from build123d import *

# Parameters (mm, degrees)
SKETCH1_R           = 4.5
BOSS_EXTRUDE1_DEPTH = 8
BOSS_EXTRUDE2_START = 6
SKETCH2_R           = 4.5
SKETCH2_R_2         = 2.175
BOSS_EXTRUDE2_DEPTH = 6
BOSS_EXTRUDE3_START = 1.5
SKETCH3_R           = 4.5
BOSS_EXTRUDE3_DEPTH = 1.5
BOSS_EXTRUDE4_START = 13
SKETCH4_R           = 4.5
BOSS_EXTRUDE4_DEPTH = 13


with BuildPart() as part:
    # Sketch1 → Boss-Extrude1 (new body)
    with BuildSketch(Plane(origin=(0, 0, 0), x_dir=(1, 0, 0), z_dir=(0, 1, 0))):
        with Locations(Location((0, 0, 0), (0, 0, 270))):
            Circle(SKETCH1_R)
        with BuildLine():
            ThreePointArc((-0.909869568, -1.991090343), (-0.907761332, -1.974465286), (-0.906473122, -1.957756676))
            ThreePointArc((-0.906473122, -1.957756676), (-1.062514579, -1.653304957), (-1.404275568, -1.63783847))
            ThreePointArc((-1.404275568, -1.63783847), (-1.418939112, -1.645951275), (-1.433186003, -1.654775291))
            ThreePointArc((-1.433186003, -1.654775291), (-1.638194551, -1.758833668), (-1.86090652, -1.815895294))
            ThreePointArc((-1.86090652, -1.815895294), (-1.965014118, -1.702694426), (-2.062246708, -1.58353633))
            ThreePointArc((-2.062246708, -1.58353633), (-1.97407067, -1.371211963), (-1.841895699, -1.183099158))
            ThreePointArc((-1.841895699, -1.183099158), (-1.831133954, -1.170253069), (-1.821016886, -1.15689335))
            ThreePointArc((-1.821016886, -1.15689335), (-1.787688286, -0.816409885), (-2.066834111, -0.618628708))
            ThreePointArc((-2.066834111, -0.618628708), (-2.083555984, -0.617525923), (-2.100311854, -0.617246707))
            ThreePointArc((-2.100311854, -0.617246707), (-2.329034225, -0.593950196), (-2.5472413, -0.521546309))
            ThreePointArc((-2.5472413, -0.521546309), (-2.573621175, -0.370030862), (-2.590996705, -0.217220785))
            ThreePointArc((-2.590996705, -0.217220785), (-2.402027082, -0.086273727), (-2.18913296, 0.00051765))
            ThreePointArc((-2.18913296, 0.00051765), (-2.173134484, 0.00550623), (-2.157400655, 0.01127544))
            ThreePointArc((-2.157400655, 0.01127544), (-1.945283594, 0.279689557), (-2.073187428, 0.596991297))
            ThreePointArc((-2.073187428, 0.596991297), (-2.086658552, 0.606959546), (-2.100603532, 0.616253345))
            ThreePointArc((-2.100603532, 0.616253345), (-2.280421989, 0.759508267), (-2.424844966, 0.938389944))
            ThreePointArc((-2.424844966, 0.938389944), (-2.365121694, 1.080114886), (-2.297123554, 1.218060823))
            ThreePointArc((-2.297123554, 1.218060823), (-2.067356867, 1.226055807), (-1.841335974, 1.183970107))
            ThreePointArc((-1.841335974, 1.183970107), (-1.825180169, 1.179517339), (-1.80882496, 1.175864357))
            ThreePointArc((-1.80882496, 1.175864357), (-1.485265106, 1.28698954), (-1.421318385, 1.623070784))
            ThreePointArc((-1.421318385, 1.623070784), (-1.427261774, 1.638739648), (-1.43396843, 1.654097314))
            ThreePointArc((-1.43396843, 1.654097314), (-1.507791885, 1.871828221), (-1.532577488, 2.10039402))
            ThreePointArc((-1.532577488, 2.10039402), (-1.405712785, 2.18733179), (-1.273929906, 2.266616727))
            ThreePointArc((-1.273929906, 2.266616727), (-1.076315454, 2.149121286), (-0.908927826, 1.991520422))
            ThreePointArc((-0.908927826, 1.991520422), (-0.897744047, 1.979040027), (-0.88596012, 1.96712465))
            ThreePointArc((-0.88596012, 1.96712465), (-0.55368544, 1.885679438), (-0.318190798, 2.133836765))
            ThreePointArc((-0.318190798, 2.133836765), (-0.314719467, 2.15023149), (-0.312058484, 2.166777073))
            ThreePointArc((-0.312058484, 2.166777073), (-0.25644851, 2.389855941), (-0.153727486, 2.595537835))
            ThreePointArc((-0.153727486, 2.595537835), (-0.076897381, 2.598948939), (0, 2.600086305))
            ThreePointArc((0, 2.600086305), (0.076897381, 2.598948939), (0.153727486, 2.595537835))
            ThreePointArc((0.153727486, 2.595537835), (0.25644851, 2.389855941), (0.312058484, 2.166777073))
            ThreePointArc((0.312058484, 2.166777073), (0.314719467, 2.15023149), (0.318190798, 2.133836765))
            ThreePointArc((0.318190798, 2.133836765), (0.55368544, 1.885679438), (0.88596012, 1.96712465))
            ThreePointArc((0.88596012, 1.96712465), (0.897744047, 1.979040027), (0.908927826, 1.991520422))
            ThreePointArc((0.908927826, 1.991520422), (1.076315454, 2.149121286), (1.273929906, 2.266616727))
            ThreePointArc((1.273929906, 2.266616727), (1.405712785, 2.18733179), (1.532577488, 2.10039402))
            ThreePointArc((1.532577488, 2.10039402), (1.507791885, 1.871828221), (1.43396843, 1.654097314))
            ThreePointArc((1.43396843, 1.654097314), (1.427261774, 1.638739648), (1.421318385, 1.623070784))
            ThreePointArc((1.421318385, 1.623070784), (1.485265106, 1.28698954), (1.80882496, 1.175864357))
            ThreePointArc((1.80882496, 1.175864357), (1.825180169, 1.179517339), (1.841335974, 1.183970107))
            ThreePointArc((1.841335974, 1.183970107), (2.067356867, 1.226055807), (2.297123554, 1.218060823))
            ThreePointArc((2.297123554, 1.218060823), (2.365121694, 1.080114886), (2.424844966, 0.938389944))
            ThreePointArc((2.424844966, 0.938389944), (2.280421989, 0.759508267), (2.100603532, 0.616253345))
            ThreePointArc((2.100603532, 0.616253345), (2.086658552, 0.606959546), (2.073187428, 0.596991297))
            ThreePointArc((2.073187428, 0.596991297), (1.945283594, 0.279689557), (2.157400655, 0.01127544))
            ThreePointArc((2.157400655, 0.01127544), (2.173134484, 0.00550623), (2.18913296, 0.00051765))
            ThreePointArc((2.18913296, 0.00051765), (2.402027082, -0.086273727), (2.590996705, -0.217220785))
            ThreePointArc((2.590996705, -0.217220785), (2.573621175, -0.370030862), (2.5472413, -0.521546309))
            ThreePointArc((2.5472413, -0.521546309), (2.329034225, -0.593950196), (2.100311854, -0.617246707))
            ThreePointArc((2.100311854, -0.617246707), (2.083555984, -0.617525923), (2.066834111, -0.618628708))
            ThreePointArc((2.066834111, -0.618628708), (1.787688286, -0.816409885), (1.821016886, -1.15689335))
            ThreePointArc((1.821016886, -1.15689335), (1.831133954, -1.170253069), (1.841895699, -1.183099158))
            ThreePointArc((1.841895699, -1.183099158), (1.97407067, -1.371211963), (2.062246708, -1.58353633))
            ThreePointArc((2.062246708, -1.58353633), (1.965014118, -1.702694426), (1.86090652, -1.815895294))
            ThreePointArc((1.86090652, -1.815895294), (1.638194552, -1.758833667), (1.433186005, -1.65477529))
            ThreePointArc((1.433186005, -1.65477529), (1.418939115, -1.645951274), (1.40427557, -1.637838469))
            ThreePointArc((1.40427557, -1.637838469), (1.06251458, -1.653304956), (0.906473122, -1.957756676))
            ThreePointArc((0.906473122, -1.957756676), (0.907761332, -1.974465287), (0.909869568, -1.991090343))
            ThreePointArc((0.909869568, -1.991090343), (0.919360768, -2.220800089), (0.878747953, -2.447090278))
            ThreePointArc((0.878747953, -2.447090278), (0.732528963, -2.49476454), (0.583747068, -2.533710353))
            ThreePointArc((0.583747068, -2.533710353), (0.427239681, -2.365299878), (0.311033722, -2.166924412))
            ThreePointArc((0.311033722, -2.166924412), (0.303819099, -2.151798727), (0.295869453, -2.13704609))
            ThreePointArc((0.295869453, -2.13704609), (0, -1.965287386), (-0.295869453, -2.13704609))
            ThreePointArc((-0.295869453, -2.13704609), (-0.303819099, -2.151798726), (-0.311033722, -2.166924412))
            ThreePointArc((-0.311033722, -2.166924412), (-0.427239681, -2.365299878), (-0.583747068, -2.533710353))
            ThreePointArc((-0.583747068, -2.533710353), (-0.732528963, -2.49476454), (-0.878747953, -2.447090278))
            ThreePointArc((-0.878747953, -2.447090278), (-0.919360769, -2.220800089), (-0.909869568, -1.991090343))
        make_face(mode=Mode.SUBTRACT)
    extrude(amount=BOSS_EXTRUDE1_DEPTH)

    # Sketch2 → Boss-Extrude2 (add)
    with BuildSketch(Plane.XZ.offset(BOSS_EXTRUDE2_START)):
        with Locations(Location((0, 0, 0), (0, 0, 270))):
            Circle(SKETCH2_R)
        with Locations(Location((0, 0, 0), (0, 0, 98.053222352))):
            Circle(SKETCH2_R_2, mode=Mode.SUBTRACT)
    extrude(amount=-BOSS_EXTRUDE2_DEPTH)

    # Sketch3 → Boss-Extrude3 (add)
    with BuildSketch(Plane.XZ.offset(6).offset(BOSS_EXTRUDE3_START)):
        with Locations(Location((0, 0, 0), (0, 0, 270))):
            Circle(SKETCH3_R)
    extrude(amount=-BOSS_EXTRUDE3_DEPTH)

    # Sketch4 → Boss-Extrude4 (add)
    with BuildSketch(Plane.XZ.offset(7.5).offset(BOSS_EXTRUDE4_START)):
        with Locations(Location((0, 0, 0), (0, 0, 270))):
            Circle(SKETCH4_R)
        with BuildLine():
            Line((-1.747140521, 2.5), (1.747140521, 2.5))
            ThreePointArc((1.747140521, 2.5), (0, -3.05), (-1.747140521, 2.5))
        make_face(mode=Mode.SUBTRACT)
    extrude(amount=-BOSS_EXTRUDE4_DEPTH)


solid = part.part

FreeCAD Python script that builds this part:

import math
import FreeCAD as App
import Part
import Sketcher

V = App.Vector

doc = App.newDocument("Part")
body = doc.addObject("PartDesign::Body", "Body")

# Sketch on XZ plane
sketch1 = body.newObject("Sketcher::SketchObject", "Sketch")
sketch1.AttachmentSupport = (doc.getObject("XZ_Plane"), [""])
sketch1.MapMode = "FlatFace"
sketch1.addGeometry(Part.Circle(V(0, 0, 0), V(0, 0, 1), 4.5), False)
sketch1.addGeometry(Part.ArcOfCircle(Part.Circle(V(0.131, 2.149, 0), V(0, 0, 1), 1.052), math.radians(164), math.radians(189)), False)
sketch1.addGeometry(Part.ArcOfCircle(Part.Circle(V(-1.247, 1.94, 0), V(0, 0, 1), 0.341), math.radians(3), math.radians(8.64)), False)
sketch1.addGeometry(Part.ArcOfCircle(Part.Circle(V(-1.247, 1.94, 0), V(0, 0, 1), 0.341), math.radians(-118), math.radians(3)), False)
sketch1.addGeometry(Part.ArcOfCircle(Part.Circle(V(-1.247, 1.94, 0), V(0, 0, 1), 0.341), math.radians(-123.18), math.radians(-117.54)), False)
sketch1.addGeometry(Part.ArcOfCircle(Part.Circle(V(-2.009, 0.774, 0), V(0, 0, 1), 1.052), math.radians(57), math.radians(82)), False)
sketch1.addGeometry(Part.ArcOfCircle(Part.Circle(V(0, 0, 0), V(0, 0, 1), 2.6), math.radians(135.7), math.radians(142.48)), False)
sketch1.addGeometry(Part.ArcOfCircle(Part.Circle(V(-1.052, 1.879, 0), V(0, 0, 1), 1.052), math.radians(-164), math.radians(-139)), False)
sketch1.addGeometry(Part.ArcOfCircle(Part.Circle(V(-2.098, 0.958, 0), V(0, 0, 1), 0.341), math.radians(35.73), math.radians(41.36)), False)
sketch1.addGeometry(Part.ArcOfCircle(Part.Circle(V(-2.098, 0.958, 0), V(0, 0, 1), 0.341), math.radians(-85), math.radians(36)), False)
sketch1.addGeometry(Part.ArcOfCircle(Part.Circle(V(-2.098, 0.958, 0), V(0, 0, 1), 0.341), math.radians(-90.45), math.radians(-84.82)), False)
sketch1.addGeometry(Part.ArcOfCircle(Part.Circle(V(-2.109, -0.435, 0), V(0, 0, 1), 1.052), math.radians(90), math.radians(115)), False)
sketch1.addGeometry(Part.ArcOfCircle(Part.Circle(V(0, 0, 0), V(0, 0, 1), 2.6), math.radians(168.43), math.radians(175.21)), False)
sketch1.addGeometry(Part.ArcOfCircle(Part.Circle(V(-1.901, 1.012, 0), V(0, 0, 1), 1.052), math.radians(-131), math.radians(-106)), False)
sketch1.addGeometry(Part.ArcOfCircle(Part.Circle(V(-2.283, -0.328, 0), V(0, 0, 1), 0.341), math.radians(68.45), math.radians(74.09)), False)
sketch1.addGeometry(Part.ArcOfCircle(Part.Circle(V(-2.283, -0.328, 0), V(0, 0, 1), 0.341), math.radians(-52), math.radians(68)), False)
sketch1.addGeometry(Part.ArcOfCircle(Part.Circle(V(-2.283, -0.328, 0), V(0, 0, 1), 0.341), math.radians(-57.73), math.radians(-52.09)), False)
sketch1.addGeometry(Part.ArcOfCircle(Part.Circle(V(-1.539, -1.506, 0), V(0, 0, 1), 1.052), math.radians(122), math.radians(147)), False)
sketch1.addGeometry(Part.ArcOfCircle(Part.Circle(V(0, 0, 0), V(0, 0, 1), 2.6), math.radians(-158.84), math.radians(-152.07)), False)
sketch1.addGeometry(Part.ArcOfCircle(Part.Circle(V(-2.146, -0.176, 0), V(0, 0, 1), 1.052), math.radians(-98), math.radians(-73)), False)
sketch1.addGeometry(Part.ArcOfCircle(Part.Circle(V(-1.743, -1.51, 0), V(0, 0, 1), 0.341), math.radians(101.18), math.radians(106.82)), False)
sketch1.addGeometry(Part.ArcOfCircle(Part.Circle(V(-1.743, -1.51, 0), V(0, 0, 1), 0.341), math.radians(-19), math.radians(101)), False)
sketch1.addGeometry(Part.ArcOfCircle(Part.Circle(V(-1.743, -1.51, 0), V(0, 0, 1), 0.341), math.radians(-25), math.radians(-19.36)), False)
sketch1.addGeometry(Part.ArcOfCircle(Part.Circle(V(-0.48, -2.099, 0), V(0, 0, 1), 1.052), math.radians(155), math.radians(180)), False)
sketch1.addGeometry(Part.ArcOfCircle(Part.Circle(V(0, 0, 0), V(0, 0, 1), 2.6), math.radians(-126.12), math.radians(-119.34)), False)
sketch1.addGeometry(Part.ArcOfCircle(Part.Circle(V(-1.71, -1.309, 0), V(0, 0, 1), 1.052), math.radians(-66), math.radians(-40)), False)
sketch1.addGeometry(Part.ArcOfCircle(Part.Circle(V(-0.65, -2.213, 0), V(0, 0, 1), 0.341), math.radians(133.91), math.radians(139.55)), False)
sketch1.addGeometry(Part.ArcOfCircle(Part.Circle(V(-0.65, -2.213, 0), V(0, 0, 1), 0.341), math.radians(13), math.radians(134)), False)
sketch1.addGeometry(Part.ArcOfCircle(Part.Circle(V(-0.65, -2.213, 0), V(0, 0, 1), 0.341), math.radians(7.73), math.radians(13.36)), False)
sketch1.addGeometry(Part.ArcOfCircle(Part.Circle(V(0.731, -2.025, 0), V(0, 0, 1), 1.052), math.radians(-172), math.radians(-147)), False)
sketch1.addGeometry(Part.ArcOfCircle(Part.Circle(V(0, 0, 0), V(0, 0, 1), 2.6), math.radians(-93.39), math.radians(-90)), False)
sketch1.addGeometry(Part.ArcOfCircle(Part.Circle(V(0, 0, 0), V(0, 0, 1), 2.6), math.radians(-90), math.radians(-86.61)), False)
sketch1.addGeometry(Part.ArcOfCircle(Part.Circle(V(-0.731, -2.025, 0), V(0, 0, 1), 1.052), math.radians(-33), math.radians(-8)), False)
sketch1.addGeometry(Part.ArcOfCircle(Part.Circle(V(0.65, -2.213, 0), V(0, 0, 1), 0.341), math.radians(166.64), math.radians(172.27)), False)
sketch1.addGeometry(Part.ArcOfCircle(Part.Circle(V(0.65, -2.213, 0), V(0, 0, 1), 0.341), math.radians(46), math.radians(167)), False)
sketch1.addGeometry(Part.ArcOfCircle(Part.Circle(V(0.65, -2.213, 0), V(0, 0, 1), 0.341), math.radians(40.45), math.radians(46.09)), False)
sketch1.addGeometry(Part.ArcOfCircle(Part.Circle(V(1.71, -1.309, 0), V(0, 0, 1), 1.052), math.radians(-140), math.radians(-114)), False)
sketch1.addGeometry(Part.ArcOfCircle(Part.Circle(V(0, 0, 0), V(0, 0, 1), 2.6), math.radians(-60.66), math.radians(-53.88)), False)
sketch1.addGeometry(Part.ArcOfCircle(Part.Circle(V(0.48, -2.099, 0), V(0, 0, 1), 1.052), math.radians(0), math.radians(25)), False)
sketch1.addGeometry(Part.ArcOfCircle(Part.Circle(V(1.743, -1.51, 0), V(0, 0, 1), 0.341), math.radians(-160.64), math.radians(-155)), False)
sketch1.addGeometry(Part.ArcOfCircle(Part.Circle(V(1.743, -1.51, 0), V(0, 0, 1), 0.341), math.radians(79), math.radians(199)), False)
sketch1.addGeometry(Part.ArcOfCircle(Part.Circle(V(1.743, -1.51, 0), V(0, 0, 1), 0.341), math.radians(73.18), math.radians(78.82)), False)
sketch1.addGeometry(Part.ArcOfCircle(Part.Circle(V(2.146, -0.176, 0), V(0, 0, 1), 1.052), math.radians(-107), math.radians(-82)), False)
sketch1.addGeometry(Part.ArcOfCircle(Part.Circle(V(0, 0, 0), V(0, 0, 1), 2.6), math.radians(-27.93), math.radians(-21.16)), False)
sketch1.addGeometry(Part.ArcOfCircle(Part.Circle(V(1.539, -1.506, 0), V(0, 0, 1), 1.052), math.radians(33), math.radians(58)), False)
sketch1.addGeometry(Part.ArcOfCircle(Part.Circle(V(2.283, -0.328, 0), V(0, 0, 1), 0.341), math.radians(-127.91), math.radians(-122.27)), False)
sketch1.addGeometry(Part.ArcOfCircle(Part.Circle(V(2.283, -0.328, 0), V(0, 0, 1), 0.341), math.radians(112), math.radians(232)), False)
sketch1.addGeometry(Part.ArcOfCircle(Part.Circle(V(2.283, -0.328, 0), V(0, 0, 1), 0.341), math.radians(105.91), math.radians(111.55)), False)
sketch1.addGeometry(Part.ArcOfCircle(Part.Circle(V(1.901, 1.012, 0), V(0, 0, 1), 1.052), math.radians(-74), math.radians(-49)), False)
sketch1.addGeometry(Part.ArcOfCircle(Part.Circle(V(0, 0, 0), V(0, 0, 1), 2.6), math.radians(4.79), math.radians(11.57)), False)
sketch1.addGeometry(Part.ArcOfCircle(Part.Circle(V(2.109, -0.435, 0), V(0, 0, 1), 1.052), math.radians(65), math.radians(90)), False)
sketch1.addGeometry(Part.ArcOfCircle(Part.Circle(V(2.098, 0.958, 0), V(0, 0, 1), 0.341), math.radians(-95.18), math.radians(-89.55)), False)
sketch1.addGeometry(Part.ArcOfCircle(Part.Circle(V(2.098, 0.958, 0), V(0, 0, 1), 0.341), math.radians(144), math.radians(265)), False)
sketch1.addGeometry(Part.ArcOfCircle(Part.Circle(V(2.098, 0.958, 0), V(0, 0, 1), 0.341), math.radians(138.64), math.radians(144.27)), False)
sketch1.addGeometry(Part.ArcOfCircle(Part.Circle(V(1.052, 1.879, 0), V(0, 0, 1), 1.052), math.radians(-41), math.radians(-16)), False)
sketch1.addGeometry(Part.ArcOfCircle(Part.Circle(V(0, 0, 0), V(0, 0, 1), 2.6), math.radians(37.52), math.radians(44.3)), False)
sketch1.addGeometry(Part.ArcOfCircle(Part.Circle(V(2.009, 0.774, 0), V(0, 0, 1), 1.052), math.radians(98), math.radians(123)), False)
sketch1.addGeometry(Part.ArcOfCircle(Part.Circle(V(1.247, 1.94, 0), V(0, 0, 1), 0.341), math.radians(-62.46), math.radians(-56.82)), False)
sketch1.addGeometry(Part.ArcOfCircle(Part.Circle(V(1.247, 1.94, 0), V(0, 0, 1), 0.341), math.radians(177), math.radians(298)), False)
sketch1.addGeometry(Part.ArcOfCircle(Part.Circle(V(1.247, 1.94, 0), V(0, 0, 1), 0.341), math.radians(171.36), math.radians(177)), False)
sketch1.addGeometry(Part.ArcOfCircle(Part.Circle(V(-0.131, 2.149, 0), V(0, 0, 1), 1.052), math.radians(-9), math.radians(16)), False)
sketch1.addGeometry(Part.ArcOfCircle(Part.Circle(V(0, 0, 0), V(0, 0, 1), 2.6), math.radians(70.25), math.radians(77.03)), False)
sketch1.addGeometry(Part.ArcOfCircle(Part.Circle(V(1.272, 1.737, 0), V(0, 0, 1), 1.052), math.radians(131), math.radians(156)), False)
sketch1.addGeometry(Part.ArcOfCircle(Part.Circle(V(0, 2.306, 0), V(0, 0, 1), 0.341), math.radians(-29.73), math.radians(-24.09)), False)
sketch1.addGeometry(Part.ArcOfCircle(Part.Circle(V(0, 2.306, 0), V(0, 0, 1), 0.341), math.radians(-150), math.radians(-30)), False)
sketch1.addGeometry(Part.ArcOfCircle(Part.Circle(V(0, 2.306, 0), V(0, 0, 1), 0.341), math.radians(-155.91), math.radians(-150.27)), False)
sketch1.addGeometry(Part.ArcOfCircle(Part.Circle(V(-1.272, 1.737, 0), V(0, 0, 1), 1.052), math.radians(24), math.radians(49)), False)
sketch1.addGeometry(Part.ArcOfCircle(Part.Circle(V(0, 0, 0), V(0, 0, 1), 2.6), math.radians(102.97), math.radians(109.75)), False)
sketch1.addConstraint(Sketcher.Constraint("Tangent", 1, 2, 2, 2))
sketch1.addConstraint(Sketcher.Constraint("Tangent", 2, 1, 3, 2))
sketch1.addConstraint(Sketcher.Constraint("Tangent", 3, 1, 4, 2))
sketch1.addConstraint(Sketcher.Constraint("Tangent", 4, 1, 5, 1))
sketch1.addConstraint(Sketcher.Constraint("Coincident", 5, 2, 6, 1))
sketch1.addConstraint(Sketcher.Constraint("Coincident", 6, 2, 7, 1))
sketch1.addConstraint(Sketcher.Constraint("Tangent", 7, 2, 8, 2))
sketch1.addConstraint(Sketcher.Constraint("Tangent", 8, 1, 9, 2))
sketch1.addConstraint(Sketcher.Constraint("Tangent", 9, 1, 10, 2))
sketch1.addConstraint(Sketcher.Constraint("Tangent", 10, 1, 11, 1))
sketch1.addConstraint(Sketcher.Constraint("Coincident", 11, 2, 12, 1))
sketch1.addConstraint(Sketcher.Constraint("Coincident", 12, 2, 13, 1))
sketch1.addConstraint(Sketcher.Constraint("Tangent", 13, 2, 14, 2))
sketch1.addConstraint(Sketcher.Constraint("Tangent", 14, 1, 15, 2))
sketch1.addConstraint(Sketcher.Constraint("Tangent", 15, 1, 16, 2))
sketch1.addConstraint(Sketcher.Constraint("Tangent", 16, 1, 17, 1))
sketch1.addConstraint(Sketcher.Constraint("Coincident", 17, 2, 18, 1))
sketch1.addConstraint(Sketcher.Constraint("Coincident", 18, 2, 19, 1))
sketch1.addConstraint(Sketcher.Constraint("Tangent", 19, 2, 20, 2))
sketch1.addConstraint(Sketcher.Constraint("Tangent", 20, 1, 21, 2))
sketch1.addConstraint(Sketcher.Constraint("Tangent", 21, 1, 22, 2))
sketch1.addConstraint(Sketcher.Constraint("Tangent", 22, 1, 23, 1))
sketch1.addConstraint(Sketcher.Constraint("Coincident", 23, 2, 24, 1))
sketch1.addConstraint(Sketcher.Constraint("Coincident", 24, 2, 25, 1))
sketch1.addConstraint(Sketcher.Constraint("Tangent", 25, 2, 26, 2))
sketch1.addConstraint(Sketcher.Constraint("Tangent", 26, 1, 27, 2))
sketch1.addConstraint(Sketcher.Constraint("Tangent", 27, 1, 28, 2))
sketch1.addConstraint(Sketcher.Constraint("Tangent", 28, 1, 29, 1))
sketch1.addConstraint(Sketcher.Constraint("Coincident", 29, 2, 30, 1))
sketch1.addConstraint(Sketcher.Constraint("Tangent", 30, 2, 31, 1))
sketch1.addConstraint(Sketcher.Constraint("Coincident", 31, 2, 32, 1))
sketch1.addConstraint(Sketcher.Constraint("Tangent", 32, 2, 33, 2))
sketch1.addConstraint(Sketcher.Constraint("Tangent", 33, 1, 34, 2))
sketch1.addConstraint(Sketcher.Constraint("Tangent", 34, 1, 35, 2))
sketch1.addConstraint(Sketcher.Constraint("Tangent", 35, 1, 36, 1))
sketch1.addConstraint(Sketcher.Constraint("Coincident", 36, 2, 37, 1))
sketch1.addConstraint(Sketcher.Constraint("Coincident", 37, 2, 38, 1))
sketch1.addConstraint(Sketcher.Constraint("Tangent", 38, 2, 39, 2))
sketch1.addConstraint(Sketcher.Constraint("Tangent", 39, 1, 40, 2))
sketch1.addConstraint(Sketcher.Constraint("Tangent", 40, 1, 41, 2))
sketch1.addConstraint(Sketcher.Constraint("Tangent", 41, 1, 42, 1))
sketch1.addConstraint(Sketcher.Constraint("Coincident", 42, 2, 43, 1))
sketch1.addConstraint(Sketcher.Constraint("Coincident", 43, 2, 44, 1))
sketch1.addConstraint(Sketcher.Constraint("Tangent", 44, 2, 45, 2))
sketch1.addConstraint(Sketcher.Constraint("Tangent", 45, 1, 46, 2))
sketch1.addConstraint(Sketcher.Constraint("Tangent", 46, 1, 47, 2))
sketch1.addConstraint(Sketcher.Constraint("Tangent", 47, 1, 48, 1))
sketch1.addConstraint(Sketcher.Constraint("Coincident", 48, 2, 49, 1))
sketch1.addConstraint(Sketcher.Constraint("Coincident", 49, 2, 50, 1))
sketch1.addConstraint(Sketcher.Constraint("Tangent", 50, 2, 51, 2))
sketch1.addConstraint(Sketcher.Constraint("Tangent", 51, 1, 52, 2))
sketch1.addConstraint(Sketcher.Constraint("Tangent", 52, 1, 53, 2))
sketch1.addConstraint(Sketcher.Constraint("Tangent", 53, 1, 54, 1))
sketch1.addConstraint(Sketcher.Constraint("Coincident", 54, 2, 55, 1))
sketch1.addConstraint(Sketcher.Constraint("Coincident", 55, 2, 56, 1))
sketch1.addConstraint(Sketcher.Constraint("Tangent", 56, 2, 57, 2))
sketch1.addConstraint(Sketcher.Constraint("Tangent", 57, 1, 58, 2))
sketch1.addConstraint(Sketcher.Constraint("Tangent", 58, 1, 59, 2))
sketch1.addConstraint(Sketcher.Constraint("Tangent", 59, 1, 60, 1))
sketch1.addConstraint(Sketcher.Constraint("Coincident", 60, 2, 61, 1))
sketch1.addConstraint(Sketcher.Constraint("Coincident", 61, 2, 62, 1))
sketch1.addConstraint(Sketcher.Constraint("Tangent", 62, 2, 63, 2))
sketch1.addConstraint(Sketcher.Constraint("Tangent", 63, 1, 64, 2))
sketch1.addConstraint(Sketcher.Constraint("Tangent", 64, 1, 65, 2))
sketch1.addConstraint(Sketcher.Constraint("Tangent", 65, 1, 66, 1))
sketch1.addConstraint(Sketcher.Constraint("Coincident", 66, 2, 67, 1))
sketch1.addConstraint(Sketcher.Constraint("Coincident", 67, 2, 1, 1))
sketch1.addConstraint(Sketcher.Constraint("Coincident", 0, 3, -1, 1))
sketch1.addConstraint(Sketcher.Constraint("Coincident", 6, 3, -1, 1))
sketch1.addConstraint(Sketcher.Constraint("Coincident", 12, 3, -1, 1))
sketch1.addConstraint(Sketcher.Constraint("Coincident", 18, 3, -1, 1))
sketch1.addConstraint(Sketcher.Constraint("Coincident", 24, 3, -1, 1))
sketch1.addConstraint(Sketcher.Constraint("Coincident", 30, 3, -1, 1))
sketch1.addConstraint(Sketcher.Constraint("Coincident", 37, 3, -1, 1))
sketch1.addConstraint(Sketcher.Constraint("Coincident", 43, 3, -1, 1))
sketch1.addConstraint(Sketcher.Constraint("Coincident", 49, 3, -1, 1))
sketch1.addConstraint(Sketcher.Constraint("Coincident", 55, 3, -1, 1))
sketch1.addConstraint(Sketcher.Constraint("Coincident", 61, 3, -1, 1))
sketch1.addConstraint(Sketcher.Constraint("Coincident", 67, 3, -1, 1))
sketch1.addConstraint(Sketcher.Constraint("Coincident", 4, 3, 2, 3))
sketch1.addConstraint(Sketcher.Constraint("Coincident", 10, 3, 8, 3))
sketch1.addConstraint(Sketcher.Constraint("Coincident", 16, 3, 14, 3))
sketch1.addConstraint(Sketcher.Constraint("Coincident", 22, 3, 20, 3))
sketch1.addConstraint(Sketcher.Constraint("Coincident", 28, 3, 26, 3))
sketch1.addConstraint(Sketcher.Constraint("Coincident", 35, 3, 33, 3))
sketch1.addConstraint(Sketcher.Constraint("Coincident", 41, 3, 39, 3))
sketch1.addConstraint(Sketcher.Constraint("Coincident", 47, 3, 45, 3))
sketch1.addConstraint(Sketcher.Constraint("Coincident", 53, 3, 51, 3))
sketch1.addConstraint(Sketcher.Constraint("Coincident", 59, 3, 57, 3))
sketch1.addConstraint(Sketcher.Constraint("Coincident", 65, 3, 63, 3))
sketch1.addConstraint(Sketcher.Constraint("Equal", 1, 5))
sketch1.addConstraint(Sketcher.Constraint("Equal", 5, 7))
sketch1.addConstraint(Sketcher.Constraint("Equal", 4, 8))
sketch1.addConstraint(Sketcher.Constraint("Equal", 7, 11))
sketch1.addConstraint(Sketcher.Constraint("Equal", 6, 12))
sketch1.addConstraint(Sketcher.Constraint("Equal", 11, 13))
sketch1.addConstraint(Sketcher.Constraint("Equal", 10, 14))
sketch1.addConstraint(Sketcher.Constraint("Equal", 13, 17))
sketch1.addConstraint(Sketcher.Constraint("Equal", 12, 18))
sketch1.addConstraint(Sketcher.Constraint("Equal", 17, 19))
sketch1.addConstraint(Sketcher.Constraint("Equal", 16, 20))
sketch1.addConstraint(Sketcher.Constraint("Equal", 19, 23))
sketch1.addConstraint(Sketcher.Constraint("Equal", 18, 24))
sketch1.addConstraint(Sketcher.Constraint("Equal", 23, 25))
sketch1.addConstraint(Sketcher.Constraint("Equal", 22, 26))
sketch1.addConstraint(Sketcher.Constraint("Equal", 25, 29))
sketch1.addConstraint(Sketcher.Constraint("Equal", 24, 30))
sketch1.addConstraint(Sketcher.Constraint("Equal", 30, 31))
sketch1.addConstraint(Sketcher.Constraint("Equal", 29, 32))
sketch1.addConstraint(Sketcher.Constraint("Equal", 28, 33))
sketch1.addConstraint(Sketcher.Constraint("Equal", 32, 36))
sketch1.addConstraint(Sketcher.Constraint("Equal", 31, 37))
sketch1.addConstraint(Sketcher.Constraint("Equal", 36, 38))
sketch1.addConstraint(Sketcher.Constraint("Equal", 35, 39))
sketch1.addConstraint(Sketcher.Constraint("Equal", 38, 42))
sketch1.addConstraint(Sketcher.Constraint("Equal", 37, 43))
sketch1.addConstraint(Sketcher.Constraint("Equal", 42, 44))
sketch1.addConstraint(Sketcher.Constraint("Equal", 41, 45))
sketch1.addConstraint(Sketcher.Constraint("Equal", 44, 48))
sketch1.addConstraint(Sketcher.Constraint("Equal", 43, 49))
sketch1.addConstraint(Sketcher.Constraint("Equal", 48, 50))
sketch1.addConstraint(Sketcher.Constraint("Equal", 47, 51))
sketch1.addConstraint(Sketcher.Constraint("Equal", 50, 54))
sketch1.addConstraint(Sketcher.Constraint("Equal", 49, 55))
sketch1.addConstraint(Sketcher.Constraint("Equal", 54, 56))
sketch1.addConstraint(Sketcher.Constraint("Equal", 53, 57))
sketch1.addConstraint(Sketcher.Constraint("Equal", 56, 60))
sketch1.addConstraint(Sketcher.Constraint("Equal", 55, 61))
sketch1.addConstraint(Sketcher.Constraint("Equal", 60, 62))
sketch1.addConstraint(Sketcher.Constraint("Equal", 59, 63))
sketch1.addConstraint(Sketcher.Constraint("Equal", 62, 66))
sketch1.addConstraint(Sketcher.Constraint("Equal", 61, 67))
sketch1.addConstraint(Sketcher.Constraint("Symmetric", 29, 3, 32, 3, -2))
sketch1.addConstraint(Sketcher.Constraint("Symmetric", 25, 3, 36, 3, -2))
sketch1.addConstraint(Sketcher.Constraint("Symmetric", 23, 3, 38, 3, -2))
sketch1.addConstraint(Sketcher.Constraint("Symmetric", 19, 3, 42, 3, -2))
sketch1.addConstraint(Sketcher.Constraint("Symmetric", 17, 3, 44, 3, -2))
sketch1.addConstraint(Sketcher.Constraint("Symmetric", 13, 3, 48, 3, -2))
sketch1.addConstraint(Sketcher.Constraint("Symmetric", 11, 3, 50, 3, -2))
sketch1.addConstraint(Sketcher.Constraint("Symmetric", 7, 3, 54, 3, -2))
sketch1.addConstraint(Sketcher.Constraint("Symmetric", 5, 3, 56, 3, -2))
sketch1.addConstraint(Sketcher.Constraint("Symmetric", 1, 3, 60, 3, -2))
sketch1.addConstraint(Sketcher.Constraint("Symmetric", 62, 3, 66, 3, -2))
sketch1.addConstraint(Sketcher.Constraint("PointOnObject", 30, 2, -2))
sketch1.addConstraint(Sketcher.Constraint("Horizontal", 27, 1, 33, 1))
sketch1.addConstraint(Sketcher.Constraint("Horizontal", 26, 1, 34, 1))
sketch1.addConstraint(Sketcher.Constraint("Horizontal", 21, 1, 39, 1))
sketch1.addConstraint(Sketcher.Constraint("Horizontal", 20, 1, 40, 1))
sketch1.addConstraint(Sketcher.Constraint("Horizontal", 15, 1, 45, 1))
sketch1.addConstraint(Sketcher.Constraint("Horizontal", 14, 1, 46, 1))
sketch1.addConstraint(Sketcher.Constraint("Horizontal", 9, 1, 51, 1))
sketch1.addConstraint(Sketcher.Constraint("Horizontal", 8, 1, 52, 1))
sketch1.addConstraint(Sketcher.Constraint("Horizontal", 3, 1, 57, 1))
sketch1.addConstraint(Sketcher.Constraint("Horizontal", 2, 1, 58, 1))
sketch1.addConstraint(Sketcher.Constraint("Horizontal", 63, 1, 64, 1))
sketch1.addConstraint(Sketcher.Constraint("Diameter", 0, 9.0))
sketch1.addConstraint(Sketcher.Constraint("Radius", 1, 1.05249))
sketch1.addConstraint(Sketcher.Constraint("Radius", 2, 0.340709))
sketch1.addConstraint(Sketcher.Constraint("Radius", 6, 2.600086))
sketch1.addConstraint(Sketcher.Constraint("DistanceY", 23, 3, -1, 1, 2.098899))
sketch1.addConstraint(Sketcher.Constraint("DistanceY", -1, 1, 7, 2, 1.183099))
sketch1.addConstraint(Sketcher.Constraint("DistanceX", 14, 1, -1, 1, 2.157401))
sketch1.addConstraint(Sketcher.Constraint("DistanceY", -1, 1, 2, 3, 1.939928))
sketch1.addConstraint(Sketcher.Constraint("DistanceX", 5, 3, -1, 1, 2.009211))
sketch1.addConstraint(Sketcher.Constraint("DistanceX", 7, 3, -1, 1, 1.05197))
sketch1.addConstraint(Sketcher.Constraint("DistanceX", 8, 3, -1, 1, 2.097608))
sketch1.addConstraint(Sketcher.Constraint("DistanceX", 11, 3, -1, 1, 2.108662))
sketch1.addConstraint(Sketcher.Constraint("DistanceY", -1, 1, 13, 3, 1.01166))
sketch1.addConstraint(Sketcher.Constraint("DistanceY", 17, 3, -1, 1, 1.506151))
sketch1.addConstraint(Sketcher.Constraint("DistanceX", 19, 3, -1, 1, 2.145859))
sketch1.addConstraint(Sketcher.Constraint("DistanceX", 23, 3, -1, 1, 0.480089))
sketch1.addConstraint(Sketcher.Constraint("DistanceX", 25, 3, -1, 1, 1.70979))
sketch1.addConstraint(Sketcher.Constraint("DistanceY", 26, 3, -1, 1, 2.212588))
sketch1.addConstraint(Sketcher.Constraint("DistanceY", 29, 3, -1, 1, 2.025261))
sketch1.addConstraint(Sketcher.Constraint("DistanceX", -1, 1, 62, 3, 1.271851))
sketch1.addConstraint(Sketcher.Constraint("DistanceX", 1, 2, -1, 1, 0.90987))
sketch1.addConstraint(Sketcher.Constraint("DistanceY", -1, 1, 1, 2, 1.99109))
sketch1.addConstraint(Sketcher.Constraint("DistanceY", -1, 1, 3, 1, 1.637838))
sketch1.addConstraint(Sketcher.Constraint("DistanceY", -1, 1, 9, 1, 0.618629))
sketch1.addConstraint(Sketcher.Constraint("DistanceY", -1, 1, 12, 2, 0.217221))
sketch1.addConstraint(Sketcher.Constraint("DistanceY", 15, 1, -1, 1, 0.596991))
sketch1.addConstraint(Sketcher.Constraint("DistanceY", 17, 2, -1, 1, 0.93839))
sketch1.addConstraint(Sketcher.Constraint("DistanceY", 18, 2, -1, 1, 1.218061))
sketch1.addConstraint(Sketcher.Constraint("DistanceX", 21, 1, -1, 1, 1.421318))
sketch1.addConstraint(Sketcher.Constraint("DistanceX", 24, 2, -1, 1, 1.27393))
sketch1.addConstraint(Sketcher.Constraint("DistanceX", 26, 1, -1, 1, 0.88596))
sketch1.addConstraint(Sketcher.Constraint("DistanceX", 27, 1, -1, 1, 0.318191))
sketch1.addConstraint(Sketcher.Constraint("DistanceY", -1, 1, 61, 2, 2.53371))
sketch1.addConstraint(Sketcher.Constraint("DistanceX", -1, 1, 63, 1, 0.295869))
sketch1.addConstraint(Sketcher.Constraint("DistanceX", 2, 1, -1, 1, 0.906473))
sketch1.addConstraint(Sketcher.Constraint("DistanceX", 8, 1, -1, 1, 1.821017))
sketch1.addConstraint(Sketcher.Constraint("DistanceX", 20, 1, -1, 1, 1.808825))
pad1 = body.newObject("PartDesign::Pad", "Pad")
pad1.Profile = sketch1
pad1.Length = 8
pad1.Reversed = True

# Sketch on XZ plane
sketch2 = body.newObject("Sketcher::SketchObject", "Sketch001")
sketch2.AttachmentSupport = (doc.getObject("XZ_Plane"), [""])
sketch2.MapMode = "FlatFace"
sketch2.AttachmentOffset = App.Placement(V(0, 0, 6), App.Rotation())
sketch2.addGeometry(Part.Circle(V(0, 0, 0), V(0, 0, 1), 4.5), False)
sketch2.addGeometry(Part.Circle(V(0, 0, 0), V(0, 0, 1), 2.2), False)
sketch2.addConstraint(Sketcher.Constraint("Coincident", 0, 3, -1, 1))
sketch2.addConstraint(Sketcher.Constraint("Coincident", 1, 3, -1, 1))
sketch2.addConstraint(Sketcher.Constraint("Diameter", 0, 9.0))
sketch2.addConstraint(Sketcher.Constraint("Diameter", 1, 4.35))
pad2 = body.newObject("PartDesign::Pad", "Pad001")
pad2.Profile = sketch2
pad2.Length = 6
pad2.Reversed = True

# Sketch on XZ plane
sketch3 = body.newObject("Sketcher::SketchObject", "Sketch002")
sketch3.AttachmentSupport = (doc.getObject("XZ_Plane"), [""])
sketch3.MapMode = "FlatFace"
sketch3.AttachmentOffset = App.Placement(V(0, 0, 7.5), App.Rotation())
sketch3.addGeometry(Part.Circle(V(0, 0, 0), V(0, 0, 1), 4.5), False)
sketch3.addConstraint(Sketcher.Constraint("Coincident", 0, 3, -1, 1))
sketch3.addConstraint(Sketcher.Constraint("Diameter", 0, 9.0))
pad3 = body.newObject("PartDesign::Pad", "Pad002")
pad3.Profile = sketch3
pad3.Length = 1.5
pad3.Reversed = True

# Sketch on XZ plane
sketch4 = body.newObject("Sketcher::SketchObject", "Sketch003")
sketch4.AttachmentSupport = (doc.getObject("XZ_Plane"), [""])
sketch4.MapMode = "FlatFace"
sketch4.AttachmentOffset = App.Placement(V(0, 0, 20.5), App.Rotation())
sketch4.addGeometry(Part.Circle(V(0, 0, 0), V(0, 0, 1), 4.5), False)
sketch4.addGeometry(Part.ArcOfCircle(Part.Circle(V(0, 0, 0), V(0, 0, 1), 3), math.radians(125), math.radians(415)), False)
sketch4.addGeometry(Part.LineSegment(V(-1.7, 2.5, 0), V(1.7, 2.5, 0)), False)
sketch4.addConstraint(Sketcher.Constraint("Coincident", 1, 1, 2, 1))
sketch4.addConstraint(Sketcher.Constraint("Coincident", 2, 2, 1, 2))
sketch4.addConstraint(Sketcher.Constraint("Horizontal", 2))
sketch4.addConstraint(Sketcher.Constraint("Coincident", 0, 3, -1, 1))
sketch4.addConstraint(Sketcher.Constraint("Coincident", 1, 3, -1, 1))
sketch4.addConstraint(Sketcher.Constraint("Diameter", 0, 9.0))
sketch4.addConstraint(Sketcher.Constraint("Radius", 1, 3.05))
sketch4.addConstraint(Sketcher.Constraint("DistanceY", -1, 1, 1, 1, 2.5))
pad4 = body.newObject("PartDesign::Pad", "Pad003")
pad4.Profile = sketch4
pad4.Length = 13
pad4.Reversed = True

doc.recompute()
